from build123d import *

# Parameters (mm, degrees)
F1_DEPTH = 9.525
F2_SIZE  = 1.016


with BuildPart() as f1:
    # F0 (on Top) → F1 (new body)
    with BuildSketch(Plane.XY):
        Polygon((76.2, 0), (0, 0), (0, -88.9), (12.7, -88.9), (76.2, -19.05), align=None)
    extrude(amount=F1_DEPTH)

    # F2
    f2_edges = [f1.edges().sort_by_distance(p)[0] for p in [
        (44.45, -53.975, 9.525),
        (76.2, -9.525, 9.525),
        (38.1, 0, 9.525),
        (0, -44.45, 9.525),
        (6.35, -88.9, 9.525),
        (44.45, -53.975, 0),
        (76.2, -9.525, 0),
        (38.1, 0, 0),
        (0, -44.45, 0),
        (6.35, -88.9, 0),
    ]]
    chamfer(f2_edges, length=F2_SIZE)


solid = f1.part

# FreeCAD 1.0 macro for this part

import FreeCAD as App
import Part
import Sketcher

V = App.Vector
Q = App.Units.Quantity


def edges_at(feature, points):
    """Names of the edges that pass closest to the given points."""
    edges = feature.Shape.Edges
    near = lambda p: min(range(len(edges)), key=lambda i: edges[i].distToShape(Part.Vertex(*p))[0])
    return sorted({f"Edge{near(p) + 1}" for p in points})


def add_polygon(sketch, points):
    """Adds a closed chain of lines whose ends are joined by coincident constraints."""
    first, n = sketch.GeometryCount, len(points)
    for a, b in zip(points, points[1:] + points[:1]):
        sketch.addGeometry(Part.LineSegment(App.Vector(*a, 0), App.Vector(*b, 0)), False)
    for i in range(n):
        sketch.addConstraint(Sketcher.Constraint("Coincident", first + i, 2, first + (i + 1) % n, 1))

doc = App.newDocument("Part")
params = doc.addObject("Spreadsheet::Sheet", "Params")
for row, (alias, value) in enumerate([
    ("sketch1_width", "3 in"),
    ("sketch1_width2", "0.5 in"),
    ("sketch1_height", "3.5 in"),
    ("sketch1_height2", "0.75 in"),
    ("pad1_length", "0.375 in"),
    ("chamfer_size", "0.04 in"),
], start=1):
    params.set(f"A{row}", alias)
    params.set(f"B{row}", "=" + value)
    params.setAlias(f"B{row}", alias)

body = doc.addObject("PartDesign::Body", "Body")

# Sketch on XY plane
sketch1 = body.newObject("Sketcher::SketchObject", "Sketch")
sketch1.AttachmentSupport = (doc.getObject("XY_Plane"), [""])
sketch1.MapMode = "FlatFace"
add_polygon(sketch1, [(76, 0), (0, 0), (0, -89), (13, -89), (76, -19)])  # lines 0-4
sketch1.addConstraint(Sketcher.Constraint("Horizontal", 0))
sketch1.addConstraint(Sketcher.Constraint("Vertical", 1))
sketch1.addConstraint(Sketcher.Constraint("Horizontal", 2))
sketch1.addConstraint(Sketcher.Constraint("Vertical", 4))
sketch1.addConstraint(Sketcher.Constraint("Coincident", 0, 2, -1, 1))
sketch1.addConstraint(Sketcher.Constraint("DistanceX", 0, 2, 0, 1, Q("3 in")))
sketch1.addConstraint(Sketcher.Constraint("DistanceX", 2, 1, 2, 2, Q("0.5 in")))
sketch1.addConstraint(Sketcher.Constraint("DistanceY", 1, 2, 1, 1, Q("3.5 in")))
sketch1.addConstraint(Sketcher.Constraint("DistanceY", 4, 1, 4, 2, Q("0.75 in")))
sketch1.setExpression("Constraints[10]", "Params.sketch1_width")
sketch1.setExpression("Constraints[11]", "Params.sketch1_width2")
sketch1.setExpression("Constraints[12]", "Params.sketch1_height")
sketch1.setExpression("Constraints[13]", "Params.sketch1_height2")
pad1 = body.newObject("PartDesign::Pad", "Pad")
pad1.Profile = sketch1
pad1.setExpression("Length", "Params.pad1_length")
doc.recompute()

chamfer = body.newObject("PartDesign::Chamfer", "Chamfer")
chamfer.Base = (pad1, edges_at(pad1, [
    (44.45, -53.975, 9.525),
    (76.2, -9.525, 9.525),
    (38.1, 0, 9.525),
    (0, -44.45, 9.525),
    (6.35, -88.9, 9.525),
    (44.45, -53.975, 0),
    (76.2, -9.525, 0),
    (38.1, 0, 0),
    (0, -44.45, 0),
    (6.35, -88.9, 0),
]))
chamfer.setExpression("Size", "Params.chamfer_size")

doc.recompute()
